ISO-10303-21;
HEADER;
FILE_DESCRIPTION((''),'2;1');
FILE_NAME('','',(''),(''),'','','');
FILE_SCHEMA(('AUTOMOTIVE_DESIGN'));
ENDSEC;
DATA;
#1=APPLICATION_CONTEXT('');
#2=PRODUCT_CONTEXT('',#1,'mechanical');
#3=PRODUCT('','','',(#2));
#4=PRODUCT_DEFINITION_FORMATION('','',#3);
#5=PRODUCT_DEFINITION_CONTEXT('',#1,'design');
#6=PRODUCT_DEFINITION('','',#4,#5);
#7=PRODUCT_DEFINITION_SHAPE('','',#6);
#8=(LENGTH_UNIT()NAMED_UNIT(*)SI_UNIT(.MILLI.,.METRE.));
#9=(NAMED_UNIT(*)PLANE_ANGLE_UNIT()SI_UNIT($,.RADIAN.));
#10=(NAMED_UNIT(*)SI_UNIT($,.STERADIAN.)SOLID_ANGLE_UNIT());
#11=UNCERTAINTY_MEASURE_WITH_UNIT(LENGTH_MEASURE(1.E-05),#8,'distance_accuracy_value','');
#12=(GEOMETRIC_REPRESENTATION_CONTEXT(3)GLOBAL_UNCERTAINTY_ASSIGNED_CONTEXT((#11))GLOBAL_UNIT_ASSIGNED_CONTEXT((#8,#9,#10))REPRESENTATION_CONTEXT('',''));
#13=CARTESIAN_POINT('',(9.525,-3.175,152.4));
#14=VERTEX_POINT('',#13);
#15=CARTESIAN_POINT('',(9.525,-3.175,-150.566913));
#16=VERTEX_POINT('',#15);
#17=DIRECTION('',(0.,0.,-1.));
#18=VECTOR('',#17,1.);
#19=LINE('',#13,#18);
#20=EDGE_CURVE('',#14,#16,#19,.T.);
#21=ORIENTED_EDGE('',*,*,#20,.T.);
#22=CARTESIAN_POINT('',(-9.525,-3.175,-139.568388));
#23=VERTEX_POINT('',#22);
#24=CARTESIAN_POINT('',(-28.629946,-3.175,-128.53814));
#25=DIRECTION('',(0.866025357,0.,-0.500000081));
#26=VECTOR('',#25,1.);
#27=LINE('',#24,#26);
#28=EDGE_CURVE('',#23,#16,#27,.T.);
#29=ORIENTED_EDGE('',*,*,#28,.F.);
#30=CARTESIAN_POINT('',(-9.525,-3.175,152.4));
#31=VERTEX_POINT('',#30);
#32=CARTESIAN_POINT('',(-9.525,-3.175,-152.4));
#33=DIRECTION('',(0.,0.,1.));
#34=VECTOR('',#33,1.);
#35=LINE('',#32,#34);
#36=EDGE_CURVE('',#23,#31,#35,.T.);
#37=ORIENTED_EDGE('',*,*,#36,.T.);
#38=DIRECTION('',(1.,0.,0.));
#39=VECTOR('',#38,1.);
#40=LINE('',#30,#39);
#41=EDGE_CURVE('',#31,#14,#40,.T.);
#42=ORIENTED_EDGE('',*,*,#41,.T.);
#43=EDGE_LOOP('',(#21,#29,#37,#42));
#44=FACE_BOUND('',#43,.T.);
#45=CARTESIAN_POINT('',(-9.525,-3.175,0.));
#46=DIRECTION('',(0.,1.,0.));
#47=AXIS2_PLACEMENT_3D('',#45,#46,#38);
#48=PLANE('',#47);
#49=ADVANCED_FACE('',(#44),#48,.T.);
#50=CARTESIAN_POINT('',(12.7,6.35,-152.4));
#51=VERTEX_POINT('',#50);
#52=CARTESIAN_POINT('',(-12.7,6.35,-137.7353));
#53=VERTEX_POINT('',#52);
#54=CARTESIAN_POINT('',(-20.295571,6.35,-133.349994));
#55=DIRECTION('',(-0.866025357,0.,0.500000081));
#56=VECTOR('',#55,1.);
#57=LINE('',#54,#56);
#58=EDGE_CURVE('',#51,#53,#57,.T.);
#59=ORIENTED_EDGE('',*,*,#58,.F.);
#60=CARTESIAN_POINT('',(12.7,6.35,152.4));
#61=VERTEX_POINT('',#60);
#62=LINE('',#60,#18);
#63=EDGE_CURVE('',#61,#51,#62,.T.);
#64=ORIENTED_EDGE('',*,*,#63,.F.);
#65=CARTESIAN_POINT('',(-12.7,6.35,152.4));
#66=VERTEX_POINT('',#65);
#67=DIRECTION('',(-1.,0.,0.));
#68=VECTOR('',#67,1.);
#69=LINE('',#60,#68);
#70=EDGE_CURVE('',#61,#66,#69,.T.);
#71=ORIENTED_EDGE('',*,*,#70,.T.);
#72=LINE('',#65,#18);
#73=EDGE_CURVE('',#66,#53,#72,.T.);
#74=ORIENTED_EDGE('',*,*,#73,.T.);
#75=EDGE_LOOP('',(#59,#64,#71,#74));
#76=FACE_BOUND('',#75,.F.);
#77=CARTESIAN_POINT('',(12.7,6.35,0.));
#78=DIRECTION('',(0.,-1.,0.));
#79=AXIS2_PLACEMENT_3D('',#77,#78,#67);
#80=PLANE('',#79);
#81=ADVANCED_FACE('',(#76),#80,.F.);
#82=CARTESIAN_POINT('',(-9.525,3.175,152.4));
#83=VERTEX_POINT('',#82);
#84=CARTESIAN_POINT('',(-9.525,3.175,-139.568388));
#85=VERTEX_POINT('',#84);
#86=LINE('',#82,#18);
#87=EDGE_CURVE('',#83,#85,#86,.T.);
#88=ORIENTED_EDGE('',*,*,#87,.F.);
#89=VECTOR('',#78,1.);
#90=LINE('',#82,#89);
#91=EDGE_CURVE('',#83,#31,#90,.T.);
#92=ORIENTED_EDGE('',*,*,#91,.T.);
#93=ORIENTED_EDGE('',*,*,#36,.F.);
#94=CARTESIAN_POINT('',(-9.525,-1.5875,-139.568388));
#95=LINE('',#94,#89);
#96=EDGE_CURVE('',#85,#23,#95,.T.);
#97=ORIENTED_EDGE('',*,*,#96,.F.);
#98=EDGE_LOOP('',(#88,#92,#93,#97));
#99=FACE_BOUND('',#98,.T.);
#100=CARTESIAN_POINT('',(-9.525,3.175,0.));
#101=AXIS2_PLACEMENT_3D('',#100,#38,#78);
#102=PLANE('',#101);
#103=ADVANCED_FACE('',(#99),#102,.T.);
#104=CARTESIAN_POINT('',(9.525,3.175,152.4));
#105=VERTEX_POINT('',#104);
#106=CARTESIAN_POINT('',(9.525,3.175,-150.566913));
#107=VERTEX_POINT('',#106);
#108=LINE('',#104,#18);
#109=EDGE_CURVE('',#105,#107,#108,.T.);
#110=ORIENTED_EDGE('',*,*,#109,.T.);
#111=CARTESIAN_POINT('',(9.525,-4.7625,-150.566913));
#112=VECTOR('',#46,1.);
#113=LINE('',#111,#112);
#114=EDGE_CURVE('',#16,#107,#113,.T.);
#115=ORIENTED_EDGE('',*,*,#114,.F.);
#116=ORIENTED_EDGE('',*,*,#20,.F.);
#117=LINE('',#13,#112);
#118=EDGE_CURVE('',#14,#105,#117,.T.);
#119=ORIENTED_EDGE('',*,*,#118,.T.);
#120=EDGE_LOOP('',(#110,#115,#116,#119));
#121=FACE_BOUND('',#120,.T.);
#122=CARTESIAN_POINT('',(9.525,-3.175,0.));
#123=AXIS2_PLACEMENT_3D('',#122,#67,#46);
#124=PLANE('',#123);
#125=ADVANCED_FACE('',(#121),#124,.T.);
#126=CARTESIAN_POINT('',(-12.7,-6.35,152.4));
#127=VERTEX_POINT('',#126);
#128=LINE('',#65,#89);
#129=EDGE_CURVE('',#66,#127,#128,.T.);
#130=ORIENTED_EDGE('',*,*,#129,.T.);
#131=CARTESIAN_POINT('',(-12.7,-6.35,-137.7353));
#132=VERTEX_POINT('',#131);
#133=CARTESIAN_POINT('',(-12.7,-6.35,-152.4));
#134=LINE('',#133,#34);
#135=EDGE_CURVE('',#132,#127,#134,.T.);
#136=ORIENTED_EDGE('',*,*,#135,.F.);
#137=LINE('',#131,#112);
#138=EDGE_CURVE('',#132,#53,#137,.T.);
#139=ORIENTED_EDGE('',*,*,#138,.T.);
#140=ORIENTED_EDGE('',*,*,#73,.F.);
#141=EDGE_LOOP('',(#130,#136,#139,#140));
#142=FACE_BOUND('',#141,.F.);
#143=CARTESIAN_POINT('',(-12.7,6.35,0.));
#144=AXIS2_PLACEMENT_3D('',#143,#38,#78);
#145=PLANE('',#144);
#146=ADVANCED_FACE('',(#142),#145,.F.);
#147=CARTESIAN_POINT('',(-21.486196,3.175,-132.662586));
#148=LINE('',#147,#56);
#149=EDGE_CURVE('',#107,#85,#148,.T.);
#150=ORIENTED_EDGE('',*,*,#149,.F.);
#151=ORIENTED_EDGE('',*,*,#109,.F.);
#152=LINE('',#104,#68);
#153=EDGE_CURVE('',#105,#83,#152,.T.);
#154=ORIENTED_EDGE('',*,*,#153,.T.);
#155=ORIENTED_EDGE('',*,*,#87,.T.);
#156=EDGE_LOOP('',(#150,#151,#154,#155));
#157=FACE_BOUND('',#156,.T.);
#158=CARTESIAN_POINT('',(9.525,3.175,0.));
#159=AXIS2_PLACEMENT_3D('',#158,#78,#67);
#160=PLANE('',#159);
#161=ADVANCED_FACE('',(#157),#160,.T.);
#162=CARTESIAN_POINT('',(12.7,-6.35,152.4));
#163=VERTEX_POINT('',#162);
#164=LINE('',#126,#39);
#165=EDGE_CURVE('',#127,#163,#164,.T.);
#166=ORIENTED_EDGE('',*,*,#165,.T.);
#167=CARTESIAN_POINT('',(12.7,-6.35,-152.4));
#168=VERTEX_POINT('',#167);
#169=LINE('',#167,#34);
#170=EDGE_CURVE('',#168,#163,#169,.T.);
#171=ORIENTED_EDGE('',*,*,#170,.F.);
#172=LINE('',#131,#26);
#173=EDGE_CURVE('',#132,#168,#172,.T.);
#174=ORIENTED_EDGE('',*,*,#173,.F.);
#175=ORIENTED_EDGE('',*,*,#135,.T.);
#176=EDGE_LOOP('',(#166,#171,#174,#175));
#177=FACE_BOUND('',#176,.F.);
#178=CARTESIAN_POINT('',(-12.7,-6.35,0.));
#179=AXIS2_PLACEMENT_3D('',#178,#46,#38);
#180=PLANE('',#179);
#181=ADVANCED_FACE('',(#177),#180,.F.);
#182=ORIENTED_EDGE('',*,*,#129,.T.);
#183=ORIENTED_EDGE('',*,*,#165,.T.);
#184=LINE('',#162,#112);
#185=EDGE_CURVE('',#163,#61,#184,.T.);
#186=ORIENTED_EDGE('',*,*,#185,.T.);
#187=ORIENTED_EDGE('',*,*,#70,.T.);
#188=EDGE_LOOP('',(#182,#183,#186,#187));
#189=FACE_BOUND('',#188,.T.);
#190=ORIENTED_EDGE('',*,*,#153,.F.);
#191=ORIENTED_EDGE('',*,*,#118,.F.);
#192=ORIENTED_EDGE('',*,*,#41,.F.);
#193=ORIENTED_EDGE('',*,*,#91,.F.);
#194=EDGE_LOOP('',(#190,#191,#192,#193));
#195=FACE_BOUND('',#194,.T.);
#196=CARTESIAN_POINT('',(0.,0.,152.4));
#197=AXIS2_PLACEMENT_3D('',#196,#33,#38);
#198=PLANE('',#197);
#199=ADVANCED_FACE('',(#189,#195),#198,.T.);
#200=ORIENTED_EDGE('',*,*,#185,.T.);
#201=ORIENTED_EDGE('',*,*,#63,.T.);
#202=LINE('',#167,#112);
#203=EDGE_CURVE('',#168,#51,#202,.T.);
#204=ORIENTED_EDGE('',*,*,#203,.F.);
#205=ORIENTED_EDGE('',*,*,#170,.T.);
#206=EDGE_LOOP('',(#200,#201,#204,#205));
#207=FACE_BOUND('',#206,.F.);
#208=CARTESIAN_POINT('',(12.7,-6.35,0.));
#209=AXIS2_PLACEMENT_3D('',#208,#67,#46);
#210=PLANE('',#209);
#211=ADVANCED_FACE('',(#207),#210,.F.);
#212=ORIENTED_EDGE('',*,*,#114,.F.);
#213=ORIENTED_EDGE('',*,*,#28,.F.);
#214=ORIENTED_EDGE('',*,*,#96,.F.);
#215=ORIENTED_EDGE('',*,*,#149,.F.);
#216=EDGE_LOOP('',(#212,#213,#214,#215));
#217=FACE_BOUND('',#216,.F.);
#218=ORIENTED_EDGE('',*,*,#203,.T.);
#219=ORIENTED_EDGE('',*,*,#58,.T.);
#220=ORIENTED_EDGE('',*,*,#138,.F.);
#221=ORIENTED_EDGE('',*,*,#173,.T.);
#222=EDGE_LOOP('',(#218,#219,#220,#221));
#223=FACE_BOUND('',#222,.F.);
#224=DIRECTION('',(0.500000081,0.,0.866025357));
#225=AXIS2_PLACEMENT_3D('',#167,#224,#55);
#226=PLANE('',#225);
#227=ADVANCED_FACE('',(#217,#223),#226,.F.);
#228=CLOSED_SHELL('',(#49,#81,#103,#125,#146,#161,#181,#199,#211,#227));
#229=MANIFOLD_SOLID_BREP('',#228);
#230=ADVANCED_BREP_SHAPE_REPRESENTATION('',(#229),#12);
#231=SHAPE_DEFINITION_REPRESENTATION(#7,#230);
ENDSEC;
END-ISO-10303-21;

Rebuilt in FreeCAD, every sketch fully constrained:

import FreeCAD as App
import Part
import Sketcher
Q = App.Units.Quantity


def add_polygon(sketch, points):
    """Adds a closed chain of lines whose ends are joined by coincident constraints."""
    first, n = sketch.GeometryCount, len(points)
    for a, b in zip(points, points[1:] + points[:1]):
        sketch.addGeometry(Part.LineSegment(App.Vector(*a, 0), App.Vector(*b, 0)), False)
    for i in range(n):
        sketch.addConstraint(Sketcher.Constraint("Coincident", first + i, 2, first + (i + 1) % n, 1))

doc = App.newDocument("Part")
body = doc.addObject("PartDesign::Body", "Body")

# Sketch on XY plane
sketch1 = body.newObject("Sketcher::SketchObject", "Sketch")
sketch1.AttachmentSupport = (doc.getObject("XY_Plane"), [""])
sketch1.MapMode = "FlatFace"
add_polygon(sketch1, [(-13, 6), (-13, -6), (13, -6), (13, 6)])  # lines 0-3
add_polygon(sketch1, [(10, -3), (-10, -3), (-10, 3), (10, 3)])  # lines 4-7
sketch1.addConstraint([
    Sketcher.Constraint("Vertical", 0),
    Sketcher.Constraint("Horizontal", 1),
    Sketcher.Constraint("Vertical", 2),
    Sketcher.Constraint("Horizontal", 3),
    Sketcher.Constraint("Horizontal", 4),
    Sketcher.Constraint("Vertical", 5),
    Sketcher.Constraint("Horizontal", 6),
    Sketcher.Constraint("Vertical", 7),
    Sketcher.Constraint("Symmetric", 0, 2, 2, 2, -1, 1),
    Sketcher.Constraint("Symmetric", 4, 2, 6, 2, -1, 1),
    Sketcher.Constraint("DistanceX", 1, 1, 1, 2, Q("1 in")),
    Sketcher.Constraint("DistanceY", 0, 2, 0, 1, Q("0.5 in")),
    Sketcher.Constraint("DistanceY", 4, 2, -1, 1, Q("0.125 in")),
    Sketcher.Constraint("DistanceX", 0, 2, 4, 2, Q("0.125 in")),
])
pad1 = body.newObject("PartDesign::Pad", "Pad")
pad1.Profile = sketch1
pad1.Length = Q("12 in")
pad1.Midplane = True

# Sketch on XZ plane
sketch2 = body.newObject("Sketcher::SketchObject", "Sketch001")
sketch2.AttachmentSupport = (doc.getObject("XZ_Plane"), [""])
sketch2.MapMode = "FlatFace"
sketch2.AttachmentOffset = App.Placement(App.Vector(0, 0, 0.25 * 25.4), App.Rotation())
add_polygon(sketch2, [(13, -152), (-13, -138), (-13, -152)])  # lines 0-2
sketch2.addConstraint([
    Sketcher.Constraint("Vertical", 1),
    Sketcher.Constraint("Horizontal", 2),
    Sketcher.Constraint("DistanceX", 2, 1, 2, 2, Q("1 in")),
    Sketcher.Constraint("DistanceY", 1, 2, -1, 1, Q("6 in")),
    Sketcher.Constraint("Angle", 0, Q("150 deg")),
    Sketcher.Constraint("DistanceX", 0, 2, -1, 1, Q("0.5 in")),
])
pocket1 = body.newObject("PartDesign::Pocket", "Pocket")
pocket1.Profile = sketch2
pocket1.Type = "ThroughAll"

doc.recompute()
